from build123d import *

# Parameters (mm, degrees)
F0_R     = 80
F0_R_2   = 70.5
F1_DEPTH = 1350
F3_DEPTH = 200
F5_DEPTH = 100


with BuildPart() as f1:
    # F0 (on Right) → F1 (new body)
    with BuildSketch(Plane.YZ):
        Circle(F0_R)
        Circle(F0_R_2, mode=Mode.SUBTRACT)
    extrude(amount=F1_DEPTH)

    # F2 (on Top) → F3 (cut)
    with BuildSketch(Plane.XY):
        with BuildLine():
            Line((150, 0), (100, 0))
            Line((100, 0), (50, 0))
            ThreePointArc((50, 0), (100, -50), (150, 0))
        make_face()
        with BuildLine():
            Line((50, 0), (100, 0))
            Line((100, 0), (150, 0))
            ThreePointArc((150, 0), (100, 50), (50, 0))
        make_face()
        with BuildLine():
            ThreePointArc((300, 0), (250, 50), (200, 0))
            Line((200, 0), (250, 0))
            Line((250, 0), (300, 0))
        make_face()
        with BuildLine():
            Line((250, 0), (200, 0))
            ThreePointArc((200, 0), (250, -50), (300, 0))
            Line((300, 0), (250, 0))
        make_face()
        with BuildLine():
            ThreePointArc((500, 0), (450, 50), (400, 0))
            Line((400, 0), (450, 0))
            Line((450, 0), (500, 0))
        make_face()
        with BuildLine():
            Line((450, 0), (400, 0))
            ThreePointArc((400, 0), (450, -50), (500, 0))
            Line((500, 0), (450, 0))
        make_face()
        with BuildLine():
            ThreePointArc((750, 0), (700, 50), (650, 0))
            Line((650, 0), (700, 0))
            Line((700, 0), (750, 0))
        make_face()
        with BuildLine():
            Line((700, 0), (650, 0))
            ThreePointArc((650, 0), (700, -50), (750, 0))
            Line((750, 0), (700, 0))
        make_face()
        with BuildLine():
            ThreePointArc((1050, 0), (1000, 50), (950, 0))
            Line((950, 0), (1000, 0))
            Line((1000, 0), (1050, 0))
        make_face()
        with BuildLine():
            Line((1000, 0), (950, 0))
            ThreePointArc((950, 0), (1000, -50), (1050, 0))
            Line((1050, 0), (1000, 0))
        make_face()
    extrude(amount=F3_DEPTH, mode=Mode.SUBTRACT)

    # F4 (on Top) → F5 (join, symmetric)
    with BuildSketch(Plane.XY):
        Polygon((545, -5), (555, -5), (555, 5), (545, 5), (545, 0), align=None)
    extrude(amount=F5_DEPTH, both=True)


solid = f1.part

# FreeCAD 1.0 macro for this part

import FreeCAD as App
import Part
import Sketcher
from FreeCAD import Vector

doc = App.newDocument("Part")
body = doc.addObject("PartDesign::Body", "Body")

# Sketch on YZ plane
sketch1 = doc.addObject("Sketcher::SketchObject", "Sketch")
body.addObject(sketch1)
sketch1.AttachmentSupport = (doc.YZ_Plane, [""])
sketch1.MapMode = "FlatFace"
sketch1.addGeometry([
    Part.Circle(Vector(0, 0, 0), Vector(0, 0, 1), 80),
    Part.Circle(Vector(0, 0, 0), Vector(0, 0, 1), 70.5),
], False)
sketch1.addConstraint([
    Sketcher.Constraint("Coincident", 0, 3, -1, 1),
    Sketcher.Constraint("Coincident", 1, 3, -1, 1),
    Sketcher.Constraint("Diameter", 0, 160.0),
    Sketcher.Constraint("Diameter", 1, 141.0),
])
pad1 = doc.addObject("PartDesign::Pad", "Pad")
body.addObject(pad1)
pad1.Profile = sketch1
pad1.Length = 1350

# Sketch on XY plane
sketch2 = doc.addObject("Sketcher::SketchObject", "Sketch001")
body.addObject(sketch2)
sketch2.AttachmentSupport = (doc.XY_Plane, [""])
sketch2.MapMode = "FlatFace"
sketch2.addGeometry([
    Part.Circle(Vector(100, 0, 0), Vector(0, 0, 1), 50),  # 0
    Part.Circle(Vector(250, 0, 0), Vector(0, 0, 1), 50),  # 1
    Part.Circle(Vector(450, 0, 0), Vector(0, 0, 1), 50),  # 2
    Part.Circle(Vector(700, 0, 0), Vector(0, 0, 1), 50),  # 3
    Part.Circle(Vector(1000, 0, 0), Vector(0, 0, 1), 50),  # 4
], False)
sketch2.addConstraint([
    Sketcher.Constraint("Equal", 0, 1),
    Sketcher.Constraint("Equal", 1, 2),
    Sketcher.Constraint("Equal", 2, 3),
    Sketcher.Constraint("Equal", 3, 4),
    Sketcher.Constraint("PointOnObject", 0, 3, -1),
    Sketcher.Constraint("PointOnObject", 1, 3, -1),
    Sketcher.Constraint("PointOnObject", 2, 3, -1),
    Sketcher.Constraint("PointOnObject", 3, 3, -1),
    Sketcher.Constraint("PointOnObject", 4, 3, -1),
    Sketcher.Constraint("Diameter", 0, 100.0),
    Sketcher.Constraint("DistanceX", -1, 1, 0, 3, 100.0),
    Sketcher.Constraint("DistanceX", -1, 1, 1, 3, 250.0),
    Sketcher.Constraint("DistanceX", -1, 1, 2, 3, 450.0),
    Sketcher.Constraint("DistanceX", -1, 1, 3, 3, 700.0),
    Sketcher.Constraint("DistanceX", -1, 1, 4, 3, 1000.0),
])
pocket1 = doc.addObject("PartDesign::Pocket", "Pocket")
body.addObject(pocket1)
pocket1.Profile = sketch2
pocket1.Length = 200
pocket1.Reversed = True

# Sketch on XY plane
sketch3 = doc.addObject("Sketcher::SketchObject", "Sketch002")
body.addObject(sketch3)
sketch3.AttachmentSupport = (doc.XY_Plane, [""])
sketch3.MapMode = "FlatFace"
sketch3.addGeometry([
    Part.LineSegment(Vector(545, -5, 0), Vector(555, -5, 0)),
    Part.LineSegment(Vector(555, -5, 0), Vector(555, 5, 0)),
    Part.LineSegment(Vector(555, 5, 0), Vector(545, 5, 0)),
    Part.LineSegment(Vector(545, 5, 0), Vector(545, -5, 0)),
], False)
sketch3.addConstraint([
    Sketcher.Constraint("Coincident", 0, 2, 1, 1),
    Sketcher.Constraint("Coincident", 1, 2, 2, 1),
    Sketcher.Constraint("Coincident", 2, 2, 3, 1),
    Sketcher.Constraint("Coincident", 3, 2, 0, 1),
    Sketcher.Constraint("Horizontal", 0),
    Sketcher.Constraint("Vertical", 1),
    Sketcher.Constraint("Horizontal", 2),
    Sketcher.Constraint("Vertical", 3),
    Sketcher.Constraint("Equal", 2, 1),
    Sketcher.Constraint("DistanceX", 0, 1, 0, 2, 10.0),
    Sketcher.Constraint("DistanceX", -1, 1, 0, 2, 555.0),
    Sketcher.Constraint("DistanceY", 0, 2, -1, 1, 5.0),
])
pad2 = doc.addObject("PartDesign::Pad", "Pad001")
body.addObject(pad2)
pad2.Profile = sketch3
pad2.Length = 200
pad2.Midplane = True

doc.recompute()
